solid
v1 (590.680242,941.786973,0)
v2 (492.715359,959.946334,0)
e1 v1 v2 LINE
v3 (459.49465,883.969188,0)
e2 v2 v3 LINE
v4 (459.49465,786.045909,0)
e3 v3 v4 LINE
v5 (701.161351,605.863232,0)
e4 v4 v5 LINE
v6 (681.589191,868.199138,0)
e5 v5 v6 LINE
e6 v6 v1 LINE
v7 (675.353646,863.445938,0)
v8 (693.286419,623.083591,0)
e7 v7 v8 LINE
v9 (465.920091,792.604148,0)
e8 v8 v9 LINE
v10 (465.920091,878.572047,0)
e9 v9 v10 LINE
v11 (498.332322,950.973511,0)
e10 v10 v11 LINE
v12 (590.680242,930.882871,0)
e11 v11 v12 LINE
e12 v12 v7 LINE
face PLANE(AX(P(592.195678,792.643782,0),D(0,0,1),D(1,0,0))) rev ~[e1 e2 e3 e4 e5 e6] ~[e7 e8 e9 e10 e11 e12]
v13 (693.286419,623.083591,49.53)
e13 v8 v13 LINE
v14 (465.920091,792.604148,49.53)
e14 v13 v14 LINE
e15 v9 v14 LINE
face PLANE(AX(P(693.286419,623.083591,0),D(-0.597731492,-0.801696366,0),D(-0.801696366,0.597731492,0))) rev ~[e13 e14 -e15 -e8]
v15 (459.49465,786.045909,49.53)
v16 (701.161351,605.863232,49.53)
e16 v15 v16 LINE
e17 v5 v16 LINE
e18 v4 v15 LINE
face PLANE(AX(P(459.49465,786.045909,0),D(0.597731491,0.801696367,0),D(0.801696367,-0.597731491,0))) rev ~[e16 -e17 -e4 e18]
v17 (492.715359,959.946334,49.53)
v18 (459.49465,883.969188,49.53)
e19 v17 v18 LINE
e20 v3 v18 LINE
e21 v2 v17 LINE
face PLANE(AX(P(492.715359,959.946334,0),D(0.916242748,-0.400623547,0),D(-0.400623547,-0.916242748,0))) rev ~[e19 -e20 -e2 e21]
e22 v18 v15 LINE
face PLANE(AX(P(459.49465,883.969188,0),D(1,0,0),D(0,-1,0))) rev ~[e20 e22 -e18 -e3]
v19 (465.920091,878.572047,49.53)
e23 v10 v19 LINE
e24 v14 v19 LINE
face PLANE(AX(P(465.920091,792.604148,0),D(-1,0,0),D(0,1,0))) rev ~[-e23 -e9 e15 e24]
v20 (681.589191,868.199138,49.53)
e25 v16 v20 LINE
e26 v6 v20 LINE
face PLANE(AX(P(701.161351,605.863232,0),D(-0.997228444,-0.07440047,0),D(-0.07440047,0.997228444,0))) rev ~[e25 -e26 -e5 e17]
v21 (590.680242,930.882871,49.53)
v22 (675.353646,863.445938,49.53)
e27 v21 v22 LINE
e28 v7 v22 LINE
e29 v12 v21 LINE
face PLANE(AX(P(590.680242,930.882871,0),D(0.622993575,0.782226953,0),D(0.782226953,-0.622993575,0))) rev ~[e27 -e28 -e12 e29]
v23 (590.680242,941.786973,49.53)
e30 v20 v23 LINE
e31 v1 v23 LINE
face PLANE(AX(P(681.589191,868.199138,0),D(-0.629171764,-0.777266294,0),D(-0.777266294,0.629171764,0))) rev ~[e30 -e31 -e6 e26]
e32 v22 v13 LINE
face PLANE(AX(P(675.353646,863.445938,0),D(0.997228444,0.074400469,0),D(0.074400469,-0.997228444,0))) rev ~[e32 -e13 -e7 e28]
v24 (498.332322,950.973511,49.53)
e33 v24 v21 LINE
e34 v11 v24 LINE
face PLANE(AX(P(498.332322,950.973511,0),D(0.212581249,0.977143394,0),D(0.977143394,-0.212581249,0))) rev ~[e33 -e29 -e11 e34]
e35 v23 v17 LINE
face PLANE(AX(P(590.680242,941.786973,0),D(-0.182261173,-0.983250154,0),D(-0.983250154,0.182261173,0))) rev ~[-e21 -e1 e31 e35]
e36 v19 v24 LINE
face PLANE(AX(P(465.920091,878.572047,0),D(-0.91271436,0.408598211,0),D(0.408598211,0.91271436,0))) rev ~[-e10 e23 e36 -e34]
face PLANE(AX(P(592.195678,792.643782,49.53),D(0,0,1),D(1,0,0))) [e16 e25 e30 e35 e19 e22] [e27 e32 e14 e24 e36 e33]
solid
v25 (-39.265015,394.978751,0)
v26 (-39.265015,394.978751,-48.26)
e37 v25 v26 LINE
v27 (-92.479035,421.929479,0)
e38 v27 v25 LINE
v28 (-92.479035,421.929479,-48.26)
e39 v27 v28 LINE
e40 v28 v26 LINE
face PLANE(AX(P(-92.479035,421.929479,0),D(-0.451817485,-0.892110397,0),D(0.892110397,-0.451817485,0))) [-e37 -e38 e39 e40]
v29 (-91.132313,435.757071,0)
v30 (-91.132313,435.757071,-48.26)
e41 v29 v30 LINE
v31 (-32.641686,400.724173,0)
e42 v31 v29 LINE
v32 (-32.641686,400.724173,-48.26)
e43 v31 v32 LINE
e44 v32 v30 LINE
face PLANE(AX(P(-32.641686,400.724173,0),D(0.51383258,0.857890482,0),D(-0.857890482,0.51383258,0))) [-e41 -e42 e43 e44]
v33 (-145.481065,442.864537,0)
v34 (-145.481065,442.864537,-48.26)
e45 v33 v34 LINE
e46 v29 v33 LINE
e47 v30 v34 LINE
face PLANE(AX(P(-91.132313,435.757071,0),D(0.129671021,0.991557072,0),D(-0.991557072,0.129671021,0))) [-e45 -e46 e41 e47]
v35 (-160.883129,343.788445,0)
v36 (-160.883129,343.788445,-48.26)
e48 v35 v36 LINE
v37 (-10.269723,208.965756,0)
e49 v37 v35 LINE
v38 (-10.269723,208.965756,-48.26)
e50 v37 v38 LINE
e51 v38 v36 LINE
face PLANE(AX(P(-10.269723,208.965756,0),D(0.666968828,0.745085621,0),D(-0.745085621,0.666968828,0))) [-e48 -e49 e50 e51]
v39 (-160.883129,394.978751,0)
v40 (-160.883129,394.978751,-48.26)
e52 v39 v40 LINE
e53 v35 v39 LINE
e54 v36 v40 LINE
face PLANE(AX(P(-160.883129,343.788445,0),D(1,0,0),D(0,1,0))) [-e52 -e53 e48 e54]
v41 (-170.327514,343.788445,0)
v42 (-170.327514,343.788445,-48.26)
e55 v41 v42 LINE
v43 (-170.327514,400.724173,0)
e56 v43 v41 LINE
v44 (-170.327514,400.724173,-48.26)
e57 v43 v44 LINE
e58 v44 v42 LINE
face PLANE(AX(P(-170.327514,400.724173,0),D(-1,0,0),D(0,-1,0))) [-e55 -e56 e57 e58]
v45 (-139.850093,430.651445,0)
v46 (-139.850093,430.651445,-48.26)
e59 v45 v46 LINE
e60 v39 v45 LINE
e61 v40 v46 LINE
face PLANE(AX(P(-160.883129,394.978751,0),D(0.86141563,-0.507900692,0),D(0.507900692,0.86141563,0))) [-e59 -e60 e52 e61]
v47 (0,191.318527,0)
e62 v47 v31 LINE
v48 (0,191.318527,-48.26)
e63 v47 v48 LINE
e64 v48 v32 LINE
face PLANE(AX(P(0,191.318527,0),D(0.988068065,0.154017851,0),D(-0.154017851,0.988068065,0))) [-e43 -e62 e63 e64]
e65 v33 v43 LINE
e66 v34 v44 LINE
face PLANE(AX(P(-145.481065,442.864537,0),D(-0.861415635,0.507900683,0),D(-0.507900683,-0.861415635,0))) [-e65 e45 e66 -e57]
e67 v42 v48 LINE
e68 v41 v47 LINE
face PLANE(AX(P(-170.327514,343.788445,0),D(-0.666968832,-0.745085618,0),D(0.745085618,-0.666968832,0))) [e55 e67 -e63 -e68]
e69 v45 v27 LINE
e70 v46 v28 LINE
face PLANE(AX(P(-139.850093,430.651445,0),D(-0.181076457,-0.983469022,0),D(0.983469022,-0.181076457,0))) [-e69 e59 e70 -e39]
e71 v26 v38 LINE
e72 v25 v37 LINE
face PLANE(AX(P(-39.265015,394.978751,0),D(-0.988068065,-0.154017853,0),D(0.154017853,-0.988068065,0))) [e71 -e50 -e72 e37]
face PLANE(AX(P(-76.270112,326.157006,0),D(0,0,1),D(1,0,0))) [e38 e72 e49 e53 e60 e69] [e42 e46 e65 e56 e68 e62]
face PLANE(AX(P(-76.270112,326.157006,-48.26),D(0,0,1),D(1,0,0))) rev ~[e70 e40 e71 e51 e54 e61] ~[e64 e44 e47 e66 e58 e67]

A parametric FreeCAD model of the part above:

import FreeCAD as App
import Part
import Sketcher
from FreeCAD import Vector
Q = App.Units.Quantity

doc = App.newDocument("Part")
body = doc.addObject("PartDesign::Body", "Body")

# Sketch on XY plane
sketch1 = body.newObject("Sketcher::SketchObject", "Sketch")
sketch1.AttachmentSupport = (doc.getObject("XY_Plane"), [""])
sketch1.MapMode = "FlatFace"
sketch1.addGeometry([
    Part.LineSegment(Vector(-91, 436, 0), Vector(-145, 443, 0)),  # 0
    Part.LineSegment(Vector(-145, 443, 0), Vector(-170, 401, 0)),  # 1
    Part.LineSegment(Vector(-170, 401, 0), Vector(-170, 344, 0)),  # 2
    Part.LineSegment(Vector(-170, 344, 0), Vector(0, 191, 0)),  # 3
    Part.LineSegment(Vector(0, 191, 0), Vector(-33, 401, 0)),  # 4
    Part.LineSegment(Vector(-33, 401, 0), Vector(-91, 436, 0)),  # 5
    Part.LineSegment(Vector(-39, 395, 0), Vector(-10, 209, 0)),  # 6
    Part.LineSegment(Vector(-10, 209, 0), Vector(-161, 344, 0)),  # 7
    Part.LineSegment(Vector(-161, 344, 0), Vector(-161, 395, 0)),  # 8
    Part.LineSegment(Vector(-161, 395, 0), Vector(-140, 431, 0)),  # 9
    Part.LineSegment(Vector(-140, 431, 0), Vector(-92, 422, 0)),  # 10
    Part.LineSegment(Vector(-92, 422, 0), Vector(-39, 395, 0)),  # 11
], False)
sketch1.addConstraint([
    Sketcher.Constraint("Coincident", 0, 2, 1, 1),
    Sketcher.Constraint("Coincident", 1, 2, 2, 1),
    Sketcher.Constraint("Coincident", 2, 2, 3, 1),
    Sketcher.Constraint("Coincident", 3, 2, 4, 1),
    Sketcher.Constraint("Coincident", 4, 2, 5, 1),
    Sketcher.Constraint("Coincident", 5, 2, 0, 1),
    Sketcher.Constraint("Coincident", 6, 2, 7, 1),
    Sketcher.Constraint("Coincident", 7, 2, 8, 1),
    Sketcher.Constraint("Coincident", 8, 2, 9, 1),
    Sketcher.Constraint("Coincident", 9, 2, 10, 1),
    Sketcher.Constraint("Coincident", 10, 2, 11, 1),
    Sketcher.Constraint("Coincident", 11, 2, 6, 1),
    Sketcher.Constraint("Vertical", 2),
    Sketcher.Constraint("Vertical", 8),
    Sketcher.Constraint("PointOnObject", 3, 2, -2),
    Sketcher.Constraint("Parallel", 4, 6),
    Sketcher.Constraint("Parallel", 3, 7),
    Sketcher.Constraint("Parallel", 1, 9),
    Sketcher.Constraint("Horizontal", 1, 2, 4, 2),
    Sketcher.Constraint("Horizontal", 2, 2, 7, 2),
    Sketcher.Constraint("Horizontal", 8, 2, 11, 2),
    Sketcher.Constraint("DistanceX", 1, 2, 5, 2, Q("79.195201 mm")),
    Sketcher.Constraint("DistanceY", 7, 2, 9, 2, Q("86.863 mm")),
    Sketcher.Constraint("Distance", 0, Q("54.811522 mm")),
    Sketcher.Constraint("Distance", 9, Q("41.41171 mm")),
    Sketcher.Constraint("Distance", 10, Q("48.167311 mm")),
    Sketcher.Constraint("Distance", 11, Q("59.649591 mm")),
    Sketcher.Constraint("DistanceY", 2, 2, 2, 1, Q("56.935728 mm")),
    Sketcher.Constraint("DistanceY", 8, 1, 8, 2, Q("51.190306 mm")),
    Sketcher.Constraint("DistanceY", -1, 1, 5, 2, Q("435.757071 mm")),
    Sketcher.Constraint("DistanceX", 7, 2, -1, 1, Q("160.883129 mm")),
    Sketcher.Constraint("DistanceY", -1, 1, 8, 2, Q("394.978751 mm")),
    Sketcher.Constraint("DistanceY", -1, 1, 10, 2, Q("421.929479 mm")),
    Sketcher.Constraint("DistanceY", 3, 2, 2, 2, Q("152.469918 mm")),
    Sketcher.Constraint("DistanceX", 0, 2, 4, 2, Q("112.839379 mm")),
    Sketcher.Constraint("DistanceX", 2, 2, 6, 2, Q("160.057791 mm")),
])
pad1 = body.newObject("PartDesign::Pad", "Pad")
pad1.Profile = sketch1
pad1.Length = Q("1.9 in")
pad1.Reversed = True
body2 = doc.addObject("PartDesign::Body", "Body001")

# Sketch on XY plane
sketch2 = body2.newObject("Sketcher::SketchObject", "Sketch001")
sketch2.AttachmentSupport = (doc.getObject("XY_Plane001"), [""])
sketch2.MapMode = "FlatFace"
sketch2.addGeometry([
    Part.LineSegment(Vector(459, 884, 0), Vector(459, 786, 0)),  # 0
    Part.LineSegment(Vector(459, 786, 0), Vector(701, 606, 0)),  # 1
    Part.LineSegment(Vector(701, 606, 0), Vector(682, 868, 0)),  # 2
    Part.LineSegment(Vector(682, 868, 0), Vector(591, 942, 0)),  # 3
    Part.LineSegment(Vector(591, 942, 0), Vector(493, 960, 0)),  # 4
    Part.LineSegment(Vector(493, 960, 0), Vector(459, 884, 0)),  # 5
    Part.LineSegment(Vector(693, 623, 0), Vector(466, 793, 0)),  # 6
    Part.LineSegment(Vector(466, 793, 0), Vector(466, 879, 0)),  # 7
    Part.LineSegment(Vector(466, 879, 0), Vector(498, 951, 0)),  # 8
    Part.LineSegment(Vector(498, 951, 0), Vector(591, 931, 0)),  # 9
    Part.LineSegment(Vector(591, 931, 0), Vector(675, 863, 0)),  # 10
    Part.LineSegment(Vector(675, 863, 0), Vector(693, 623, 0)),  # 11
], False)
sketch2.addConstraint([
    Sketcher.Constraint("Coincident", 0, 2, 1, 1),
    Sketcher.Constraint("Coincident", 1, 2, 2, 1),
    Sketcher.Constraint("Coincident", 2, 2, 3, 1),
    Sketcher.Constraint("Coincident", 3, 2, 4, 1),
    Sketcher.Constraint("Coincident", 4, 2, 5, 1),
    Sketcher.Constraint("Coincident", 5, 2, 0, 1),
    Sketcher.Constraint("Coincident", 6, 2, 7, 1),
    Sketcher.Constraint("Coincident", 7, 2, 8, 1),
    Sketcher.Constraint("Coincident", 8, 2, 9, 1),
    Sketcher.Constraint("Coincident", 9, 2, 10, 1),
    Sketcher.Constraint("Coincident", 10, 2, 11, 1),
    Sketcher.Constraint("Coincident", 11, 2, 6, 1),
    Sketcher.Constraint("Vertical", 0),
    Sketcher.Constraint("Vertical", 7),
    Sketcher.Constraint("Parallel", 1, 6),
    Sketcher.Constraint("Parallel", 2, 11),
    Sketcher.Constraint("Vertical", 3, 2, 9, 2),
    Sketcher.Constraint("DistanceY", 7, 1, 7, 2, Q("85.967899 mm")),
    Sketcher.Constraint("DistanceY", 0, 2, 0, 1, Q("97.923279 mm")),
    Sketcher.Constraint("DistanceX", 0, 2, 1, 2, Q("241.666701 mm")),
    Sketcher.Constraint("DistanceY", 1, 2, 4, 2, Q("354.083102 mm")),
    Sketcher.Constraint("DistanceX", 6, 2, 2, 2, Q("215.6691 mm")),
    Sketcher.Constraint("DistanceY", 9, 2, 3, 2, Q("10.904102 mm")),
    Sketcher.Constraint("DistanceY", 10, 2, 2, 2, Q("4.7532 mm")),
    Sketcher.Constraint("Distance", 3, Q("116.95985 mm")),
    Sketcher.Constraint("DistanceX", -1, 1, 0, 2, Q("459.49465 mm")),
    Sketcher.Constraint("DistanceY", -1, 1, 0, 2, Q("786.045909 mm")),
    Sketcher.Constraint("DistanceY", -1, 1, 1, 2, Q("605.863232 mm")),
    Sketcher.Constraint("DistanceX", -1, 1, 2, 2, Q("681.589191 mm")),
    Sketcher.Constraint("DistanceX", -1, 1, 3, 2, Q("590.680242 mm")),
    Sketcher.Constraint("DistanceX", -1, 1, 4, 2, Q("492.715359 mm")),
    Sketcher.Constraint("DistanceY", -1, 1, 6, 2, Q("792.604148 mm")),
    Sketcher.Constraint("DistanceX", -1, 1, 8, 2, Q("498.332322 mm")),
    Sketcher.Constraint("DistanceY", -1, 1, 8, 2, Q("950.973511 mm")),
    Sketcher.Constraint("DistanceY", -1, 1, 9, 2, Q("930.882871 mm")),
    Sketcher.Constraint("DistanceX", -1, 1, 11, 2, Q("693.286419 mm")),
])
pad2 = body2.newObject("PartDesign::Pad", "Pad001")
pad2.Profile = sketch2
pad2.Length = Q("1.95 in")

doc.recompute()
